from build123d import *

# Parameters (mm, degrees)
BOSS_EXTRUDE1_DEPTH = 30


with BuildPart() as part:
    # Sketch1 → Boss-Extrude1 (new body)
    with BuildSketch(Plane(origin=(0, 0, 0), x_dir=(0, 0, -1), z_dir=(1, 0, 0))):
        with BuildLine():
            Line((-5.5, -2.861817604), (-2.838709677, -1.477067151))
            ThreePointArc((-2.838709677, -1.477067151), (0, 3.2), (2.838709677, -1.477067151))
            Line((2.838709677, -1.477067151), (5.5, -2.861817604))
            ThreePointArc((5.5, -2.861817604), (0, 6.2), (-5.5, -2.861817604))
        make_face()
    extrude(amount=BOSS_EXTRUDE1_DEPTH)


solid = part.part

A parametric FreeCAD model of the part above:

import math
import FreeCAD as App
import Part
import Sketcher

V = App.Vector
Q = App.Units.Quantity

doc = App.newDocument("Part")
body = doc.addObject("PartDesign::Body", "Body")

# Sketch on YZ plane
sketch1 = body.newObject("Sketcher::SketchObject", "Sketch")
sketch1.AttachmentSupport = (doc.getObject("YZ_Plane"), [""])
sketch1.MapMode = "FlatFace"
sketch1.addGeometry(Part.LineSegment(V(-2.861818, 5.5, 0), V(-1.477067, 2.83871, 0)), False)
sketch1.addGeometry(Part.ArcOfCircle(Part.Circle(V(0, 0, 0), V(0, 0, 1), 3.2), math.radians(-117.489334), math.radians(117.489334)), False)
sketch1.addGeometry(Part.LineSegment(V(-1.477067, -2.83871, 0), V(-2.861818, -5.5, 0)), False)
sketch1.addGeometry(Part.ArcOfCircle(Part.Circle(V(0, 0, 0), V(0, 0, 1), 6.2), math.radians(-117.489334), math.radians(117.489334)), False)
sketch1.addConstraint(Sketcher.Constraint("Coincident", 0, 2, 1, 2))
sketch1.addConstraint(Sketcher.Constraint("Coincident", 1, 1, 2, 1))
sketch1.addConstraint(Sketcher.Constraint("Coincident", 2, 2, 3, 1))
sketch1.addConstraint(Sketcher.Constraint("Coincident", 3, 2, 0, 1))
sketch1.addConstraint(Sketcher.Constraint("Coincident", 1, 3, -1, 1))
sketch1.addConstraint(Sketcher.Constraint("Coincident", 3, 3, -1, 1))
sketch1.addConstraint(Sketcher.Constraint("Vertical", 0, 2, 1, 1))
sketch1.addConstraint(Sketcher.Constraint("Vertical", 2, 2, 3, 2))
sketch1.addConstraint(Sketcher.Constraint("Radius", 1, Q("3.2 mm")))
sketch1.addConstraint(Sketcher.Constraint("Radius", 3, Q("6.2 mm")))
sketch1.addConstraint(Sketcher.Constraint("DistanceY", 2, 2, 3, 2, Q("11 mm")))
sketch1.addConstraint(Sketcher.Constraint("DistanceY", -1, 1, 0, 2, Q("2.83871 mm")))
pad1 = body.newObject("PartDesign::Pad", "Pad")
pad1.Profile = sketch1
pad1.Length = 30

doc.recompute()
